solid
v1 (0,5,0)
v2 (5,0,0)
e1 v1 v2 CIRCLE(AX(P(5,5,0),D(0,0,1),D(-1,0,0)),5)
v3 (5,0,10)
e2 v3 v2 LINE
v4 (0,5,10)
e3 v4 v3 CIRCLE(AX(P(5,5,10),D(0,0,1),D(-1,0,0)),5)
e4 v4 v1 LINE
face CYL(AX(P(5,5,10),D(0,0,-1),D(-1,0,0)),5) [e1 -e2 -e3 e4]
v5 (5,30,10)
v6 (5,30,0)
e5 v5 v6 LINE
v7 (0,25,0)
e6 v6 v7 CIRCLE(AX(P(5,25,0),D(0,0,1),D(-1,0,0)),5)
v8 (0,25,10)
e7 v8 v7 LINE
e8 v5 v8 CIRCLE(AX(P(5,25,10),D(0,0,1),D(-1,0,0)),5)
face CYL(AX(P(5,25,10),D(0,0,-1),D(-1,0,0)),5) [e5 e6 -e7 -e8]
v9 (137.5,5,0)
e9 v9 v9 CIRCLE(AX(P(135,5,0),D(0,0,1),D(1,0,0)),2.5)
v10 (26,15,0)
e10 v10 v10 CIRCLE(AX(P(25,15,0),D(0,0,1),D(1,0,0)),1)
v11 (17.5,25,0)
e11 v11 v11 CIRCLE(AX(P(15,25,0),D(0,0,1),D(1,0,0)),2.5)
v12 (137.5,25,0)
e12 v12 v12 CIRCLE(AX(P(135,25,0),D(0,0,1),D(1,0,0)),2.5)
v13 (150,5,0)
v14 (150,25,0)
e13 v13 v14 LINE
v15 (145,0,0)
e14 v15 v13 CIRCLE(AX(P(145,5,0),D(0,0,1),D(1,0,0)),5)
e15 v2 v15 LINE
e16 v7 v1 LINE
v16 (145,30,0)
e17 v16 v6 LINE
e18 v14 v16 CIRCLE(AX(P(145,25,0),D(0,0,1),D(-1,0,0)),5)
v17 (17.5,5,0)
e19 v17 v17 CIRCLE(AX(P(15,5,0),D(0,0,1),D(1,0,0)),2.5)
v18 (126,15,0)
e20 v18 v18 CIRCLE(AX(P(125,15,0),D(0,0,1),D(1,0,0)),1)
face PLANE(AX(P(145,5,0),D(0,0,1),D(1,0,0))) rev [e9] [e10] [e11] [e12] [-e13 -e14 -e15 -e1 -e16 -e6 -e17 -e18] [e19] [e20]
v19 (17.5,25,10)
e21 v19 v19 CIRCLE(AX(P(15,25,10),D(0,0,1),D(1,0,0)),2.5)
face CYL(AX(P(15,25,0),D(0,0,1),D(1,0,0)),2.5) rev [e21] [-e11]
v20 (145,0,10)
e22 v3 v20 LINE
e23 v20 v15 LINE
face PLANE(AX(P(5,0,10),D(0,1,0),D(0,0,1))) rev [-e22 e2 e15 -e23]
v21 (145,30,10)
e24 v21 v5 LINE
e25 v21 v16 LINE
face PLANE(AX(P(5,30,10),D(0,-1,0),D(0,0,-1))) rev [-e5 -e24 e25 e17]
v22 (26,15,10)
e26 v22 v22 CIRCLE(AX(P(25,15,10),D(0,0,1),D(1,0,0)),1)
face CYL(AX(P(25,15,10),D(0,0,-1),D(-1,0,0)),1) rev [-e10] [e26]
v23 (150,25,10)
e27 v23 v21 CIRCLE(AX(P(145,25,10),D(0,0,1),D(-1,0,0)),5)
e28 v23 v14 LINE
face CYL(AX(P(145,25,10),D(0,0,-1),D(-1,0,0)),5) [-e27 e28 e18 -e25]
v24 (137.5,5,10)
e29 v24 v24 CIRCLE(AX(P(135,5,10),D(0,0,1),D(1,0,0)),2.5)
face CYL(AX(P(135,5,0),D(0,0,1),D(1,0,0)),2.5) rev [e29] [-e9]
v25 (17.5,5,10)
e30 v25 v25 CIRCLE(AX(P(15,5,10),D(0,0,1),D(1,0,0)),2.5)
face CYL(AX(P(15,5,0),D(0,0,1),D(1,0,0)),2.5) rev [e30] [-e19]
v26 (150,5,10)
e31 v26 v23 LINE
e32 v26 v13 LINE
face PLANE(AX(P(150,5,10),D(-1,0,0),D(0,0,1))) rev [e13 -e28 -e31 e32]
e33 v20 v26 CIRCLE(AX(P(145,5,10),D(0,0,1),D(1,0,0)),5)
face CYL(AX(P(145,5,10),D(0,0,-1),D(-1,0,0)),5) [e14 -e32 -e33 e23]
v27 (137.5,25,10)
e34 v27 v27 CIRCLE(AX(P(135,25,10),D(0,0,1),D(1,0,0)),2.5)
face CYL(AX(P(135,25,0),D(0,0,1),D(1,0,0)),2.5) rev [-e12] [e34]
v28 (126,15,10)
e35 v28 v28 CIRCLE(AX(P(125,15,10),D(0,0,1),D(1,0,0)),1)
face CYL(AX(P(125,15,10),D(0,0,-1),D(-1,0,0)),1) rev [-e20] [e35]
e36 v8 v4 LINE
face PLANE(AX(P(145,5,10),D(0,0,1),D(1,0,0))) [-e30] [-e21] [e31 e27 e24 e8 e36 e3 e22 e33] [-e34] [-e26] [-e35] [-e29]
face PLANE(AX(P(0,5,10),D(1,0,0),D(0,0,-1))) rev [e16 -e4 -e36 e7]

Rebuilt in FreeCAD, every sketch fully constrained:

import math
import FreeCAD as App
import Part
import Sketcher

V = App.Vector

doc = App.newDocument("Part")
body = doc.addObject("PartDesign::Body", "Body")

# Sketch on XY plane
sketch1 = body.newObject("Sketcher::SketchObject", "Sketch")
sketch1.AttachmentSupport = (doc.getObject("XY_Plane"), [""])
sketch1.MapMode = "FlatFace"
sketch1.addGeometry([
    Part.LineSegment(V(5, 0, 0), V(145, 0, 0)),  # 0
    Part.ArcOfCircle(Part.Circle(V(145, 5, 0), V(0, 0, 1), 5), math.radians(-90), math.radians(0)),  # 1
    Part.LineSegment(V(150, 5, 0), V(150, 25, 0)),  # 2
    Part.ArcOfCircle(Part.Circle(V(145, 25, 0), V(0, 0, 1), 5), math.radians(0), math.radians(90)),  # 3
    Part.LineSegment(V(145, 30, 0), V(5, 30, 0)),  # 4
    Part.ArcOfCircle(Part.Circle(V(5, 25, 0), V(0, 0, 1), 5), math.radians(90), math.radians(180)),  # 5
    Part.LineSegment(V(0, 25, 0), V(0, 5, 0)),  # 6
    Part.ArcOfCircle(Part.Circle(V(5, 5, 0), V(0, 0, 1), 5), math.radians(180), math.radians(270)),  # 7
    Part.Circle(V(25, 15, 0), V(0, 0, 1), 1),  # 8
    Part.Circle(V(125, 15, 0), V(0, 0, 1), 1),  # 9
], False)
sketch1.addConstraint([
    Sketcher.Constraint("Tangent", 0, 2, 1, 1),
    Sketcher.Constraint("Tangent", 1, 2, 2, 1),
    Sketcher.Constraint("Tangent", 2, 2, 3, 1),
    Sketcher.Constraint("Tangent", 3, 2, 4, 1),
    Sketcher.Constraint("Tangent", 4, 2, 5, 1),
    Sketcher.Constraint("Tangent", 5, 2, 6, 1),
    Sketcher.Constraint("Tangent", 6, 2, 7, 1),
    Sketcher.Constraint("Tangent", 7, 2, 0, 1),
    Sketcher.Constraint("Horizontal", 0),
    Sketcher.Constraint("Vertical", 2),
    Sketcher.Constraint("Horizontal", 4),
    Sketcher.Constraint("Vertical", 6),
    Sketcher.Constraint("Equal", 1, 3),
    Sketcher.Constraint("Equal", 3, 5),
    Sketcher.Constraint("Equal", 5, 7),
    Sketcher.Constraint("Equal", 8, 9),
    Sketcher.Constraint("PointOnObject", 0, 2, -1),
    Sketcher.Constraint("PointOnObject", 5, 2, -2),
    Sketcher.Constraint("Horizontal", 8, 3, 9, 3),
    Sketcher.Constraint("Diameter", 8, 2.0),
    Sketcher.Constraint("Radius", 1, 5.0),
    Sketcher.Constraint("DistanceX", 0, 1, 0, 2, 140.0),
    Sketcher.Constraint("DistanceY", 2, 1, 2, 2, 20.0),
    Sketcher.Constraint("DistanceX", -1, 1, 8, 3, 25.0),
    Sketcher.Constraint("DistanceY", -1, 1, 8, 3, 15.0),
    Sketcher.Constraint("DistanceX", -1, 1, 9, 3, 125.0),
])
pad1 = body.newObject("PartDesign::Pad", "Pad")
pad1.Profile = sketch1
pad1.Length = 10

# Sketch on XY plane
sketch2 = body.newObject("Sketcher::SketchObject", "Sketch001")
sketch2.AttachmentSupport = (doc.getObject("XY_Plane"), [""])
sketch2.MapMode = "FlatFace"
sketch2.AttachmentOffset = App.Placement(V(0, 0, 10), App.Rotation())
sketch2.addGeometry([
    Part.Circle(V(15, 25, 0), V(0, 0, 1), 2.5),
    Part.Circle(V(15, 5, 0), V(0, 0, 1), 2.5),
    Part.Circle(V(135, 25, 0), V(0, 0, 1), 2.5),
    Part.Circle(V(135, 5, 0), V(0, 0, 1), 2.5),
], False)
sketch2.addConstraint([
    Sketcher.Constraint("Equal", 0, 1),
    Sketcher.Constraint("Equal", 1, 2),
    Sketcher.Constraint("Equal", 2, 3),
    Sketcher.Constraint("Horizontal", 0, 3, 2, 3),
    Sketcher.Constraint("Horizontal", 1, 3, 3, 3),
    Sketcher.Constraint("Vertical", 0, 3, 1, 3),
    Sketcher.Constraint("Vertical", 2, 3, 3, 3),
    Sketcher.Constraint("Diameter", 0, 5.0),
    Sketcher.Constraint("DistanceX", -1, 1, 0, 3, 15.0),
    Sketcher.Constraint("DistanceY", -1, 1, 0, 3, 25.0),
    Sketcher.Constraint("DistanceY", -1, 1, 1, 3, 5.0),
    Sketcher.Constraint("DistanceX", -1, 1, 2, 3, 135.0),
])
pocket1 = body.newObject("PartDesign::Pocket", "Pocket")
pocket1.Profile = sketch2
pocket1.Type = "ThroughAll"

doc.recompute()
